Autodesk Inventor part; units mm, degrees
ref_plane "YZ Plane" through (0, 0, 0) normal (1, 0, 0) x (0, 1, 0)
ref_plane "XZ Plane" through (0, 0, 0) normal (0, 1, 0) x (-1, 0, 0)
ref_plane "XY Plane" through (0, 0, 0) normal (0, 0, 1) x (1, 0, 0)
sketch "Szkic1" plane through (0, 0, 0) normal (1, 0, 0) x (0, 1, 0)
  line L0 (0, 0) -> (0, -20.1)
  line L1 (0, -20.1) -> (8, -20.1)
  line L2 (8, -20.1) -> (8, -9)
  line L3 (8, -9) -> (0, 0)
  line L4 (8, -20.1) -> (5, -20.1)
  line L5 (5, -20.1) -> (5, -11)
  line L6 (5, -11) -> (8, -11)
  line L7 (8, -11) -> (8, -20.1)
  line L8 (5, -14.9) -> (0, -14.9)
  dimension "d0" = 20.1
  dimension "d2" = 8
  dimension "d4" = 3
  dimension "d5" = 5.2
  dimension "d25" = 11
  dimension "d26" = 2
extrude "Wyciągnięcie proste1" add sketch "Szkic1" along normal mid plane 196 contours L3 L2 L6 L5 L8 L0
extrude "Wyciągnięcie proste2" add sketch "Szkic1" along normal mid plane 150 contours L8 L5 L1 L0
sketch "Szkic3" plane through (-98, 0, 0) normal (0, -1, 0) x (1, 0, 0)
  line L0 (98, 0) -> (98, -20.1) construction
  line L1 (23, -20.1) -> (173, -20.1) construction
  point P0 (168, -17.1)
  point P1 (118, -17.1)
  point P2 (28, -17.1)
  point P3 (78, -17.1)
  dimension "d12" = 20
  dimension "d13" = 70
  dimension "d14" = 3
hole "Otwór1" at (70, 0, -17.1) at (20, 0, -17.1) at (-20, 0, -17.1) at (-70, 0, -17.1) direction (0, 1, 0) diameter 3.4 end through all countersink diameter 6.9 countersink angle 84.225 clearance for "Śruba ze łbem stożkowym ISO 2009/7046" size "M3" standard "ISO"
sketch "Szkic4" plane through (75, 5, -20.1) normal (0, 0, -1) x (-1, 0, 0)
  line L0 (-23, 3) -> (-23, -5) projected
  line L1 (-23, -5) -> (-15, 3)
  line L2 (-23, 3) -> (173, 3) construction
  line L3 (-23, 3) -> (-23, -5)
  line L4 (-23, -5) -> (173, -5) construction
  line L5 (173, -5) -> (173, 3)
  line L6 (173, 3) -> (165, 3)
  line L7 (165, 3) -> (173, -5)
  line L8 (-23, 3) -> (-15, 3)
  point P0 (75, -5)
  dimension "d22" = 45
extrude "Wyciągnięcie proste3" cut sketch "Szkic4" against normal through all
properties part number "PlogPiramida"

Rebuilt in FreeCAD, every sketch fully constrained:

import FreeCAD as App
import Part
import Sketcher
Q = App.Units.Quantity


def add_polygon(sketch, points):
    """Adds a closed chain of lines whose ends are joined by coincident constraints."""
    first, n = sketch.GeometryCount, len(points)
    for a, b in zip(points, points[1:] + points[:1]):
        sketch.addGeometry(Part.LineSegment(App.Vector(*a, 0), App.Vector(*b, 0)), False)
    for i in range(n):
        sketch.addConstraint(Sketcher.Constraint("Coincident", first + i, 2, first + (i + 1) % n, 1))

doc = App.newDocument("Part")
body = doc.addObject("PartDesign::Body", "Body")

# Sketch on YZ plane
sketch1 = doc.addObject("Sketcher::SketchObject", "Sketch")
body.addObject(sketch1)
sketch1.AttachmentSupport = (doc.YZ_Plane, [""])
sketch1.MapMode = "FlatFace"
add_polygon(sketch1, [(8, -9), (0, 0), (0, -14.9), (5, -14.9), (5, -11), (8, -11)])  # lines 0-5
sketch1.addConstraint([
    Sketcher.Constraint("Vertical", 1),
    Sketcher.Constraint("Horizontal", 2),
    Sketcher.Constraint("Vertical", 3),
    Sketcher.Constraint("Horizontal", 4),
    Sketcher.Constraint("Vertical", 5),
    Sketcher.Constraint("Coincident", 0, 2, -1, 1),
    Sketcher.Constraint("DistanceX", 4, 1, 4, 2, Q("3 mm")),
    Sketcher.Constraint("DistanceY", 5, 1, 5, 2, Q("2 mm")),
    Sketcher.Constraint("DistanceY", 3, 2, -1, 1, Q("11 mm")),
    Sketcher.Constraint("DistanceX", -1, 1, 4, 2, Q("8 mm")),
    Sketcher.Constraint("DistanceY", 1, 2, 1, 1, Q("14.9 mm")),
])
pad1 = doc.addObject("PartDesign::Pad", "Pad")
body.addObject(pad1)
pad1.Profile = sketch1
pad1.Length = 196
pad1.Midplane = True

# Sketch on YZ plane
sketch2 = doc.addObject("Sketcher::SketchObject", "Sketch001")
body.addObject(sketch2)
sketch2.AttachmentSupport = (doc.YZ_Plane, [""])
sketch2.MapMode = "FlatFace"
add_polygon(sketch2, [(5, -15), (0, -15), (0, -20), (5, -20)])  # lines 0-3
sketch2.addConstraint([
    Sketcher.Constraint("Horizontal", 0),
    Sketcher.Constraint("Vertical", 1),
    Sketcher.Constraint("Horizontal", 2),
    Sketcher.Constraint("Vertical", 3),
    Sketcher.Constraint("PointOnObject", 0, 2, -2),
    Sketcher.Constraint("DistanceY", 1, 2, 1, 1, Q("5.2 mm")),
    Sketcher.Constraint("DistanceY", 1, 2, -1, 1, Q("20.1 mm")),
    Sketcher.Constraint("DistanceX", 0, 2, 0, 1, Q("5 mm")),
])
pad2 = doc.addObject("PartDesign::Pad", "Pad001")
body.addObject(pad2)
pad2.Profile = sketch2
pad2.Length = 150
pad2.Midplane = True

# Sketch on XZ plane
sketch3 = doc.addObject("Sketcher::SketchObject", "Sketch002")
body.addObject(sketch3)
sketch3.AttachmentSupport = (doc.XZ_Plane, [""])
sketch3.MapMode = "FlatFace"
sketch3.addGeometry([
    Part.Circle(App.Vector(70, -17.1, 0), App.Vector(0, 0, 1), 1.7),
    Part.Circle(App.Vector(20, -17.1, 0), App.Vector(0, 0, 1), 1.7),
    Part.Circle(App.Vector(-20, -17.1, 0), App.Vector(0, 0, 1), 1.7),
    Part.Circle(App.Vector(-70, -17.1, 0), App.Vector(0, 0, 1), 1.7),
], False)
sketch3.addConstraint([
    Sketcher.Constraint("Equal", 0, 1),
    Sketcher.Constraint("Equal", 1, 2),
    Sketcher.Constraint("Equal", 2, 3),
    Sketcher.Constraint("Symmetric", 1, 3, 2, 3, -2),
    Sketcher.Constraint("Symmetric", 0, 3, 3, 3, -2),
    Sketcher.Constraint("Horizontal", 0, 3, 1, 3),
    Sketcher.Constraint("Diameter", 0, Q("3.4 mm")),
    Sketcher.Constraint("DistanceX", -1, 1, 0, 3, Q("70 mm")),
    Sketcher.Constraint("DistanceX", -1, 1, 1, 3, Q("20 mm")),
    Sketcher.Constraint("DistanceY", 0, 3, -1, 1, Q("17.1 mm")),
])
doc.recompute()
hole = doc.addObject("PartDesign::Hole", "Hole")
body.addObject(hole)
hole.Profile = sketch3
hole.ThreadType = "None"
hole.Diameter = 3.4
hole.DepthType = "ThroughAll"
hole.HoleCutType = "Countersink"
hole.HoleCutDiameter = 6.9
hole.HoleCutCountersinkAngle = 84.225

# Sketch on XY plane
sketch4 = doc.addObject("Sketcher::SketchObject", "Sketch003")
body.addObject(sketch4)
sketch4.AttachmentSupport = (doc.XY_Plane, [""])
sketch4.MapMode = "FlatFace"
sketch4.AttachmentOffset = App.Placement(App.Vector(0, 0, -20.1), App.Rotation())
add_polygon(sketch4, [(90, 8), (98, 8), (98, 0)])  # lines 0-2
add_polygon(sketch4, [(-90, 8), (-98, 0), (-98, 8)])  # lines 3-5
sketch4.addConstraint([
    Sketcher.Constraint("Horizontal", 0),
    Sketcher.Constraint("Vertical", 1),
    Sketcher.Constraint("Vertical", 4),
    Sketcher.Constraint("Horizontal", 5),
    Sketcher.Constraint("Symmetric", 1, 2, 3, 2, -1, 1),
    Sketcher.Constraint("Symmetric", 2, 2, 5, 2, -2),
    Sketcher.Constraint("PointOnObject", 1, 2, -1),
    Sketcher.Constraint("Perpendicular", 2, 3),
    Sketcher.Constraint("DistanceX", 0, 1, 0, 2, Q("8 mm")),
    Sketcher.Constraint("DistanceX", -1, 1, 0, 2, Q("98 mm")),
])
pocket1 = doc.addObject("PartDesign::Pocket", "Pocket")
body.addObject(pocket1)
pocket1.Profile = sketch4
pocket1.Type = "ThroughAll"
pocket1.Reversed = True

doc.recompute()
